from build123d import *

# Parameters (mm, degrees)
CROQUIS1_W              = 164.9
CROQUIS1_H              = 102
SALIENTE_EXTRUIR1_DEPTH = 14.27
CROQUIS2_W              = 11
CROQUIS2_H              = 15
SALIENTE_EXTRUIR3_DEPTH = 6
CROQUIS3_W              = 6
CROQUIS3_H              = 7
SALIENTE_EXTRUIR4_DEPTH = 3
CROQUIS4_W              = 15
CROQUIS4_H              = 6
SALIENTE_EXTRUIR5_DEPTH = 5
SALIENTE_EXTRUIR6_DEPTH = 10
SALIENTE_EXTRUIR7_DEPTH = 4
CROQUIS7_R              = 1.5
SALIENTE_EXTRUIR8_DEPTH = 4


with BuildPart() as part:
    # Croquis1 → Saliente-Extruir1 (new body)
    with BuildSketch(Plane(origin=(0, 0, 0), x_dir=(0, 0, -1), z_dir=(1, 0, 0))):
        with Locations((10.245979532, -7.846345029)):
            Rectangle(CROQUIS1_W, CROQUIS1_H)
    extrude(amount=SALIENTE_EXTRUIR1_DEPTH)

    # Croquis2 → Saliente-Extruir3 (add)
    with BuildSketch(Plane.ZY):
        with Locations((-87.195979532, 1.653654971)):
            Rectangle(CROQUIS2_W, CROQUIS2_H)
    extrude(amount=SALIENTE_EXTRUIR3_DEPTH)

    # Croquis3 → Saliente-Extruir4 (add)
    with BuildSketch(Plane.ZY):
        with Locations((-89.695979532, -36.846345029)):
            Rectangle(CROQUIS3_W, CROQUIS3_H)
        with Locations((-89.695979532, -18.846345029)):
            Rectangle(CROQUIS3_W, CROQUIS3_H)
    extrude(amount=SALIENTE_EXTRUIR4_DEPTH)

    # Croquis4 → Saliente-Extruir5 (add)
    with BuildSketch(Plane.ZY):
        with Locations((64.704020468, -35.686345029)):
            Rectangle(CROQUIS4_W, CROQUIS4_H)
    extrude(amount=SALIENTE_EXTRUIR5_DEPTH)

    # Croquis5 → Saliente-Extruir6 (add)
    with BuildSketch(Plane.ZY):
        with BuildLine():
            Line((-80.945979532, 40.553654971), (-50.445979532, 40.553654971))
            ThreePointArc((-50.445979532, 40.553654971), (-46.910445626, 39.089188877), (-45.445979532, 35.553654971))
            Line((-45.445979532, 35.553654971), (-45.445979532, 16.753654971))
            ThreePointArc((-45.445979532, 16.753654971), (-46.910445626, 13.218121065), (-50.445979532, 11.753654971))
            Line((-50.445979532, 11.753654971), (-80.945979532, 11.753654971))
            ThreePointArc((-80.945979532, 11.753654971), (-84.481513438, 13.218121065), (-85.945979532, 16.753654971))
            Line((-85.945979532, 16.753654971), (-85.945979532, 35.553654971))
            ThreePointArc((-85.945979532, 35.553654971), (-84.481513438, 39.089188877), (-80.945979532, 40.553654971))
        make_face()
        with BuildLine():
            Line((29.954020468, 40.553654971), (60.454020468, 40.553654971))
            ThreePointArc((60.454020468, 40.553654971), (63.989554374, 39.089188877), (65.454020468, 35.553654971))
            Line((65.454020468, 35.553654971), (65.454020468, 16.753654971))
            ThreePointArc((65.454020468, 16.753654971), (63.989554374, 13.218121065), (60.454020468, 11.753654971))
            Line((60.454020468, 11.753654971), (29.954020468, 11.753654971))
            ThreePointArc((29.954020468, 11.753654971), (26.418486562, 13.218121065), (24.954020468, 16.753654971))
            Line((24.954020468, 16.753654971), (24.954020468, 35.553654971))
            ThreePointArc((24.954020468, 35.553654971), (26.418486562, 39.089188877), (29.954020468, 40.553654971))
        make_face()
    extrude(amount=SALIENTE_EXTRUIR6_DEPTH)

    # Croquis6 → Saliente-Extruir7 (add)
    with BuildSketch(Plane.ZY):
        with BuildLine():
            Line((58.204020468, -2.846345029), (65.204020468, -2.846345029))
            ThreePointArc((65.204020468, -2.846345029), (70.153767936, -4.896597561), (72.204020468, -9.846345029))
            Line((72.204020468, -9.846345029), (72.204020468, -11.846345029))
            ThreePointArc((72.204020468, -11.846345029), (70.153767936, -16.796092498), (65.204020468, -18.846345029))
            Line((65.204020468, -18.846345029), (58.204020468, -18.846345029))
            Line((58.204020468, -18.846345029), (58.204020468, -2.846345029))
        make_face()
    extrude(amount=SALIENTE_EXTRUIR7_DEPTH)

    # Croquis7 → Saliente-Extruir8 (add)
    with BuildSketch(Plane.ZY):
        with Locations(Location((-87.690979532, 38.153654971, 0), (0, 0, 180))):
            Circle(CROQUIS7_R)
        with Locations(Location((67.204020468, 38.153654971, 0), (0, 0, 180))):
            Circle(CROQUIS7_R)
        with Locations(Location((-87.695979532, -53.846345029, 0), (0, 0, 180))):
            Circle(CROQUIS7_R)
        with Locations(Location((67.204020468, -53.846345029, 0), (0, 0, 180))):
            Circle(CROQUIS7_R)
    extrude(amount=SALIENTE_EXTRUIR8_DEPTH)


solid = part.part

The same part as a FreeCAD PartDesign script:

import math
import FreeCAD as App
import Part
import Sketcher

V = App.Vector
Q = App.Units.Quantity

doc = App.newDocument("Part")
body = doc.addObject("PartDesign::Body", "Body")

# Sketch on YZ plane
sketch1 = body.newObject("Sketcher::SketchObject", "Sketch")
sketch1.AttachmentSupport = (doc.getObject("YZ_Plane"), [""])
sketch1.MapMode = "FlatFace"
sketch1.addGeometry([
    Part.LineSegment(V(43, 72, 0), V(-59, 72, 0)),
    Part.LineSegment(V(-59, 72, 0), V(-59, -93, 0)),
    Part.LineSegment(V(-59, -93, 0), V(43, -93, 0)),
    Part.LineSegment(V(43, -93, 0), V(43, 72, 0)),
], False)
sketch1.addConstraint([
    Sketcher.Constraint("Coincident", 0, 2, 1, 1),
    Sketcher.Constraint("Coincident", 1, 2, 2, 1),
    Sketcher.Constraint("Coincident", 2, 2, 3, 1),
    Sketcher.Constraint("Coincident", 3, 2, 0, 1),
    Sketcher.Constraint("Horizontal", 0),
    Sketcher.Constraint("Vertical", 1),
    Sketcher.Constraint("Horizontal", 2),
    Sketcher.Constraint("Vertical", 3),
    Sketcher.Constraint("DistanceX", 0, 2, 0, 1, Q("102 mm")),
    Sketcher.Constraint("DistanceY", 1, 2, 1, 1, Q("164.9 mm")),
    Sketcher.Constraint("DistanceY", -1, 1, 0, 2, Q("72.20402 mm")),
    Sketcher.Constraint("DistanceX", 0, 2, -1, 1, Q("58.846345 mm")),
])
pad1 = body.newObject("PartDesign::Pad", "Pad")
pad1.Profile = sketch1
pad1.Length = 14.27

# Sketch on YZ plane
sketch2 = body.newObject("Sketcher::SketchObject", "Sketch001")
sketch2.AttachmentSupport = (doc.getObject("YZ_Plane"), [""])
sketch2.MapMode = "FlatFace"
sketch2.addGeometry([
    Part.LineSegment(V(9, -93, 0), V(-6, -93, 0)),
    Part.LineSegment(V(-6, -93, 0), V(-6, -82, 0)),
    Part.LineSegment(V(-6, -82, 0), V(9, -82, 0)),
    Part.LineSegment(V(9, -82, 0), V(9, -93, 0)),
], False)
sketch2.addConstraint([
    Sketcher.Constraint("Coincident", 0, 2, 1, 1),
    Sketcher.Constraint("Coincident", 1, 2, 2, 1),
    Sketcher.Constraint("Coincident", 2, 2, 3, 1),
    Sketcher.Constraint("Coincident", 3, 2, 0, 1),
    Sketcher.Constraint("Horizontal", 0),
    Sketcher.Constraint("Vertical", 1),
    Sketcher.Constraint("Horizontal", 2),
    Sketcher.Constraint("Vertical", 3),
    Sketcher.Constraint("DistanceX", 0, 2, 0, 1, Q("15 mm")),
    Sketcher.Constraint("DistanceY", 1, 1, 1, 2, Q("11 mm")),
    Sketcher.Constraint("DistanceY", 0, 2, -1, 1, Q("92.69598 mm")),
    Sketcher.Constraint("DistanceX", 0, 2, -1, 1, Q("5.846345 mm")),
])
pad2 = body.newObject("PartDesign::Pad", "Pad001")
pad2.Profile = sketch2
pad2.Length = 6
pad2.Reversed = True

# Sketch on YZ plane
sketch3 = body.newObject("Sketcher::SketchObject", "Sketch002")
sketch3.AttachmentSupport = (doc.getObject("YZ_Plane"), [""])
sketch3.MapMode = "FlatFace"
sketch3.addGeometry([
    Part.LineSegment(V(-33, -93, 0), V(-40, -93, 0)),  # 0
    Part.LineSegment(V(-40, -93, 0), V(-40, -87, 0)),  # 1
    Part.LineSegment(V(-40, -87, 0), V(-33, -87, 0)),  # 2
    Part.LineSegment(V(-33, -87, 0), V(-33, -93, 0)),  # 3
    Part.LineSegment(V(-15, -93, 0), V(-22, -93, 0)),  # 4
    Part.LineSegment(V(-22, -93, 0), V(-22, -87, 0)),  # 5
    Part.LineSegment(V(-22, -87, 0), V(-15, -87, 0)),  # 6
    Part.LineSegment(V(-15, -87, 0), V(-15, -93, 0)),  # 7
], False)
sketch3.addConstraint([
    Sketcher.Constraint("Coincident", 0, 2, 1, 1),
    Sketcher.Constraint("Coincident", 1, 2, 2, 1),
    Sketcher.Constraint("Coincident", 2, 2, 3, 1),
    Sketcher.Constraint("Coincident", 3, 2, 0, 1),
    Sketcher.Constraint("Coincident", 4, 2, 5, 1),
    Sketcher.Constraint("Coincident", 5, 2, 6, 1),
    Sketcher.Constraint("Coincident", 6, 2, 7, 1),
    Sketcher.Constraint("Coincident", 7, 2, 4, 1),
    Sketcher.Constraint("Horizontal", 0),
    Sketcher.Constraint("Vertical", 1),
    Sketcher.Constraint("Horizontal", 2),
    Sketcher.Constraint("Vertical", 3),
    Sketcher.Constraint("Horizontal", 4),
    Sketcher.Constraint("Vertical", 5),
    Sketcher.Constraint("Horizontal", 6),
    Sketcher.Constraint("Vertical", 7),
    Sketcher.Constraint("Horizontal", 3, 2, 4, 2),
    Sketcher.Constraint("Horizontal", 2, 2, 5, 2),
    Sketcher.Constraint("Equal", 2, 4),
    Sketcher.Constraint("DistanceX", 0, 2, 0, 1, Q("7 mm")),
    Sketcher.Constraint("DistanceY", 1, 1, 1, 2, Q("6 mm")),
    Sketcher.Constraint("DistanceX", 3, 2, 4, 2, Q("11 mm")),
    Sketcher.Constraint("DistanceY", 0, 2, -1, 1, Q("92.69598 mm")),
    Sketcher.Constraint("DistanceX", 0, 2, -1, 1, Q("40.346345 mm")),
])
pad3 = body.newObject("PartDesign::Pad", "Pad002")
pad3.Profile = sketch3
pad3.Length = 3
pad3.Reversed = True

# Sketch on YZ plane
sketch4 = body.newObject("Sketcher::SketchObject", "Sketch003")
sketch4.AttachmentSupport = (doc.getObject("YZ_Plane"), [""])
sketch4.MapMode = "FlatFace"
sketch4.addGeometry([
    Part.LineSegment(V(-33, 57, 0), V(-39, 57, 0)),
    Part.LineSegment(V(-39, 57, 0), V(-39, 72, 0)),
    Part.LineSegment(V(-39, 72, 0), V(-33, 72, 0)),
    Part.LineSegment(V(-33, 72, 0), V(-33, 57, 0)),
], False)
sketch4.addConstraint([
    Sketcher.Constraint("Coincident", 0, 2, 1, 1),
    Sketcher.Constraint("Coincident", 1, 2, 2, 1),
    Sketcher.Constraint("Coincident", 2, 2, 3, 1),
    Sketcher.Constraint("Coincident", 3, 2, 0, 1),
    Sketcher.Constraint("Horizontal", 0),
    Sketcher.Constraint("Vertical", 1),
    Sketcher.Constraint("Horizontal", 2),
    Sketcher.Constraint("Vertical", 3),
    Sketcher.Constraint("DistanceX", 0, 2, 0, 1, Q("6 mm")),
    Sketcher.Constraint("DistanceY", 1, 1, 1, 2, Q("15 mm")),
    Sketcher.Constraint("DistanceY", -1, 1, 0, 2, Q("57.20402 mm")),
    Sketcher.Constraint("DistanceX", 0, 2, -1, 1, Q("38.686345 mm")),
])
pad4 = body.newObject("PartDesign::Pad", "Pad003")
pad4.Profile = sketch4
pad4.Length = 5
pad4.Reversed = True

# Sketch on YZ plane
sketch5 = body.newObject("Sketcher::SketchObject", "Sketch004")
sketch5.AttachmentSupport = (doc.getObject("YZ_Plane"), [""])
sketch5.MapMode = "FlatFace"
sketch5.addGeometry([
    Part.LineSegment(V(41, -50, 0), V(41, -81, 0)),  # 0
    Part.ArcOfCircle(Part.Circle(V(36, -81, 0), V(0, 0, 1), 5), math.radians(-90), math.radians(0)),  # 1
    Part.LineSegment(V(36, -86, 0), V(17, -86, 0)),  # 2
    Part.ArcOfCircle(Part.Circle(V(17, -81, 0), V(0, 0, 1), 5), math.radians(180), math.radians(270)),  # 3
    Part.LineSegment(V(12, -81, 0), V(12, -50, 0)),  # 4
    Part.ArcOfCircle(Part.Circle(V(17, -50, 0), V(0, 0, 1), 5), math.radians(90), math.radians(180)),  # 5
    Part.LineSegment(V(17, -45, 0), V(36, -45, 0)),  # 6
    Part.ArcOfCircle(Part.Circle(V(36, -50, 0), V(0, 0, 1), 5), math.radians(0), math.radians(90)),  # 7
    Part.LineSegment(V(41, 60, 0), V(41, 30, 0)),  # 8
    Part.ArcOfCircle(Part.Circle(V(36, 30, 0), V(0, 0, 1), 5), math.radians(-90), math.radians(0)),  # 9
    Part.LineSegment(V(36, 25, 0), V(17, 25, 0)),  # 10
    Part.ArcOfCircle(Part.Circle(V(17, 30, 0), V(0, 0, 1), 5), math.radians(180), math.radians(270)),  # 11
    Part.LineSegment(V(12, 30, 0), V(12, 60, 0)),  # 12
    Part.ArcOfCircle(Part.Circle(V(17, 60, 0), V(0, 0, 1), 5), math.radians(90), math.radians(180)),  # 13
    Part.LineSegment(V(17, 65, 0), V(36, 65, 0)),  # 14
    Part.ArcOfCircle(Part.Circle(V(36, 60, 0), V(0, 0, 1), 5), math.radians(0), math.radians(90)),  # 15
], False)
sketch5.addConstraint([
    Sketcher.Constraint("Tangent", 0, 2, 1, 2),
    Sketcher.Constraint("Tangent", 1, 1, 2, 1),
    Sketcher.Constraint("Tangent", 2, 2, 3, 2),
    Sketcher.Constraint("Tangent", 3, 1, 4, 1),
    Sketcher.Constraint("Tangent", 4, 2, 5, 2),
    Sketcher.Constraint("Tangent", 5, 1, 6, 1),
    Sketcher.Constraint("Tangent", 6, 2, 7, 2),
    Sketcher.Constraint("Tangent", 7, 1, 0, 1),
    Sketcher.Constraint("Tangent", 8, 2, 9, 2),
    Sketcher.Constraint("Tangent", 9, 1, 10, 1),
    Sketcher.Constraint("Tangent", 10, 2, 11, 2),
    Sketcher.Constraint("Tangent", 11, 1, 12, 1),
    Sketcher.Constraint("Tangent", 12, 2, 13, 2),
    Sketcher.Constraint("Tangent", 13, 1, 14, 1),
    Sketcher.Constraint("Tangent", 14, 2, 15, 2),
    Sketcher.Constraint("Tangent", 15, 1, 8, 1),
    Sketcher.Constraint("Vertical", 0),
    Sketcher.Constraint("Horizontal", 2),
    Sketcher.Constraint("Vertical", 4),
    Sketcher.Constraint("Horizontal", 6),
    Sketcher.Constraint("Vertical", 8),
    Sketcher.Constraint("Horizontal", 10),
    Sketcher.Constraint("Vertical", 12),
    Sketcher.Constraint("Horizontal", 14),
    Sketcher.Constraint("Equal", 1, 3),
    Sketcher.Constraint("Equal", 3, 5),
    Sketcher.Constraint("Equal", 5, 7),
    Sketcher.Constraint("Equal", 7, 9),
    Sketcher.Constraint("Equal", 9, 11),
    Sketcher.Constraint("Equal", 11, 13),
    Sketcher.Constraint("Equal", 13, 15),
    Sketcher.Constraint("Vertical", 7, 3, 9, 3),
    Sketcher.Constraint("Vertical", 5, 3, 11, 3),
    Sketcher.Constraint("Equal", 4, 8),
    Sketcher.Constraint("Radius", 1, Q("5 mm")),
    Sketcher.Constraint("DistanceX", 2, 2, 2, 1, Q("18.8 mm")),
    Sketcher.Constraint("DistanceY", 0, 2, 0, 1, Q("30.5 mm")),
    Sketcher.Constraint("DistanceY", 7, 3, 9, 3, Q("80.4 mm")),
    Sketcher.Constraint("DistanceY", 1, 3, -1, 1, Q("80.94598 mm")),
    Sketcher.Constraint("DistanceX", -1, 1, 1, 3, Q("35.553655 mm")),
])
pad5 = body.newObject("PartDesign::Pad", "Pad004")
pad5.Profile = sketch5
pad5.Length = 10
pad5.Reversed = True

# Sketch on YZ plane
sketch6 = body.newObject("Sketcher::SketchObject", "Sketch005")
sketch6.AttachmentSupport = (doc.getObject("YZ_Plane"), [""])
sketch6.MapMode = "FlatFace"
sketch6.addGeometry([
    Part.LineSegment(V(-2.8, 65.2, 0), V(-2.8, 58.2, 0)),  # 0
    Part.LineSegment(V(-2.8, 58.2, 0), V(-18.8, 58.2, 0)),  # 1
    Part.LineSegment(V(-18.8, 58.2, 0), V(-18.8, 65.2, 0)),  # 2
    Part.ArcOfCircle(Part.Circle(V(-11.8, 65.2, 0), V(0, 0, 1), 7), math.radians(90), math.radians(180)),  # 3
    Part.LineSegment(V(-11.8, 72.2, 0), V(-9.8, 72.2, 0)),  # 4
    Part.ArcOfCircle(Part.Circle(V(-9.8, 65.2, 0), V(0, 0, 1), 7), math.radians(0), math.radians(90)),  # 5
], False)
sketch6.addConstraint([
    Sketcher.Constraint("Coincident", 0, 2, 1, 1),
    Sketcher.Constraint("Coincident", 1, 2, 2, 1),
    Sketcher.Constraint("Tangent", 2, 2, 3, 2),
    Sketcher.Constraint("Tangent", 3, 1, 4, 1),
    Sketcher.Constraint("Tangent", 4, 2, 5, 2),
    Sketcher.Constraint("Tangent", 5, 1, 0, 1),
    Sketcher.Constraint("Vertical", 0),
    Sketcher.Constraint("Horizontal", 1),
    Sketcher.Constraint("Vertical", 2),
    Sketcher.Constraint("Horizontal", 4),
    Sketcher.Constraint("Equal", 3, 5),
    Sketcher.Constraint("Radius", 3, Q("7 mm")),
    Sketcher.Constraint("DistanceX", 1, 2, 1, 1, Q("16 mm")),
    Sketcher.Constraint("DistanceY", 0, 2, 0, 1, Q("7 mm")),
    Sketcher.Constraint("DistanceY", -1, 1, 3, 3, Q("65.20402 mm")),
    Sketcher.Constraint("DistanceX", 3, 3, -1, 1, Q("11.846345 mm")),
])
pad6 = body.newObject("PartDesign::Pad", "Pad005")
pad6.Profile = sketch6
pad6.Length = 4
pad6.Reversed = True

# Sketch on YZ plane
sketch7 = body.newObject("Sketcher::SketchObject", "Sketch006")
sketch7.AttachmentSupport = (doc.getObject("YZ_Plane"), [""])
sketch7.MapMode = "FlatFace"
sketch7.addGeometry([
    Part.Circle(V(38.2, -87.7, 0), V(0, 0, 1), 1.5),
    Part.Circle(V(38.2, 67.2, 0), V(0, 0, 1), 1.5),
    Part.Circle(V(-53.8, -87.7, 0), V(0, 0, 1), 1.5),
    Part.Circle(V(-53.8, 67.2, 0), V(0, 0, 1), 1.5),
], False)
sketch7.addConstraint([
    Sketcher.Constraint("Equal", 0, 1),
    Sketcher.Constraint("Equal", 1, 2),
    Sketcher.Constraint("Equal", 2, 3),
    Sketcher.Constraint("Horizontal", 1, 3, 3, 3),
    Sketcher.Constraint("Vertical", 0, 3, 1, 3),
    Sketcher.Constraint("Vertical", 2, 3, 3, 3),
    Sketcher.Constraint("Diameter", 0, Q("3 mm")),
    Sketcher.Constraint("DistanceX", 2, 3, 0, 3, Q("92 mm")),
    Sketcher.Constraint("DistanceY", 2, 3, 1, 3, Q("154.9 mm")),
    Sketcher.Constraint("DistanceY", 0, 3, 1, 3, Q("154.895 mm")),
    Sketcher.Constraint("DistanceY", 0, 3, -1, 1, Q("87.69098 mm")),
    Sketcher.Constraint("DistanceX", -1, 1, 0, 3, Q("38.153655 mm")),
])
pad7 = body.newObject("PartDesign::Pad", "Pad006")
pad7.Profile = sketch7
pad7.Length = 4
pad7.Reversed = True

doc.recompute()
